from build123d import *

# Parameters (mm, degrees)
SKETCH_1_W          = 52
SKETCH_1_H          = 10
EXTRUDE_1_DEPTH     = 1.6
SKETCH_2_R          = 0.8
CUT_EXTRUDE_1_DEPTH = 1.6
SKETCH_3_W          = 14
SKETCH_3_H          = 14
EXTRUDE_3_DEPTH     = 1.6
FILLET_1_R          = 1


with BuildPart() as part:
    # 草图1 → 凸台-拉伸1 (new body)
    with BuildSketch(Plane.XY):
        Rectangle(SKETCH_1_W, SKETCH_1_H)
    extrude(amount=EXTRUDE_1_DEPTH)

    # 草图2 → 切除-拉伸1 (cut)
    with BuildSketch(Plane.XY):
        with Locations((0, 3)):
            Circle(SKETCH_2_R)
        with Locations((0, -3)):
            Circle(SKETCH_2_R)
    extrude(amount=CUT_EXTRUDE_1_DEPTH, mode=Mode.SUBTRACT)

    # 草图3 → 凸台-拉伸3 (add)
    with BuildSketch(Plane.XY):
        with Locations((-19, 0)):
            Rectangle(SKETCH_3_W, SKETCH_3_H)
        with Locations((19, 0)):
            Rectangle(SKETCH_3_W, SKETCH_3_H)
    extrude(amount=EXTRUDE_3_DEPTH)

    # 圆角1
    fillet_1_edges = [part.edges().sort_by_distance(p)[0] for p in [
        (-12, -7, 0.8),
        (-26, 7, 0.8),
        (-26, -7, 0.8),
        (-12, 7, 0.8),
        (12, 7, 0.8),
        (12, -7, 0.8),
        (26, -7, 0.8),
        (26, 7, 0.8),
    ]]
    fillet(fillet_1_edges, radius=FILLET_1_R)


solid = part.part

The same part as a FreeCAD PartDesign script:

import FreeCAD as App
import Part
import Sketcher

V = App.Vector


def edges_at(feature, points):
    """Names of the edges that pass closest to the given points."""
    edges = feature.Shape.Edges
    near = lambda p: min(range(len(edges)), key=lambda i: edges[i].distToShape(Part.Vertex(*p))[0])
    return sorted({f"Edge{near(p) + 1}" for p in points})

doc = App.newDocument("Part")
body = doc.addObject("PartDesign::Body", "Body")

# Sketch on XY plane
sketch1 = body.newObject("Sketcher::SketchObject", "Sketch")
sketch1.AttachmentSupport = (doc.getObject("XY_Plane"), [""])
sketch1.MapMode = "FlatFace"
sketch1.addGeometry([
    Part.LineSegment(V(-26, 5, 0), V(-26, -5, 0)),
    Part.LineSegment(V(-26, -5, 0), V(26, -5, 0)),
    Part.LineSegment(V(26, -5, 0), V(26, 5, 0)),
    Part.LineSegment(V(26, 5, 0), V(-26, 5, 0)),
], False)
sketch1.addConstraint([
    Sketcher.Constraint("Coincident", 0, 2, 1, 1),
    Sketcher.Constraint("Coincident", 1, 2, 2, 1),
    Sketcher.Constraint("Coincident", 2, 2, 3, 1),
    Sketcher.Constraint("Coincident", 3, 2, 0, 1),
    Sketcher.Constraint("Vertical", 0),
    Sketcher.Constraint("Horizontal", 1),
    Sketcher.Constraint("Vertical", 2),
    Sketcher.Constraint("Horizontal", 3),
    Sketcher.Constraint("Symmetric", 0, 2, 2, 2, -1, 1),
    Sketcher.Constraint("DistanceX", 1, 1, 1, 2, 52.0),
    Sketcher.Constraint("DistanceY", 0, 2, 0, 1, 10.0),
])
pad1 = body.newObject("PartDesign::Pad", "Pad")
pad1.Profile = sketch1
pad1.Length = 1.6

# Sketch on XY plane
sketch2 = body.newObject("Sketcher::SketchObject", "Sketch001")
sketch2.AttachmentSupport = (doc.getObject("XY_Plane"), [""])
sketch2.MapMode = "FlatFace"
sketch2.addGeometry([
    Part.Circle(V(0, 3, 0), V(0, 0, 1), 0.8),
    Part.Circle(V(0, -3, 0), V(0, 0, 1), 0.8),
], False)
sketch2.addConstraint([
    Sketcher.Constraint("Equal", 0, 1),
    Sketcher.Constraint("Symmetric", 0, 3, 1, 3, -1, 1),
    Sketcher.Constraint("PointOnObject", 0, 3, -2),
    Sketcher.Constraint("Diameter", 0, 1.6),
    Sketcher.Constraint("DistanceY", -1, 1, 0, 3, 3.0),
])
pocket1 = body.newObject("PartDesign::Pocket", "Pocket")
pocket1.Profile = sketch2
pocket1.Length = 1.6
pocket1.Reversed = True

# Sketch on XY plane
sketch3 = body.newObject("Sketcher::SketchObject", "Sketch002")
sketch3.AttachmentSupport = (doc.getObject("XY_Plane"), [""])
sketch3.MapMode = "FlatFace"
sketch3.addGeometry([
    Part.LineSegment(V(-26, 7, 0), V(-26, -7, 0)),  # 0
    Part.LineSegment(V(-26, -7, 0), V(-12, -7, 0)),  # 1
    Part.LineSegment(V(-12, -7, 0), V(-12, 7, 0)),  # 2
    Part.LineSegment(V(-12, 7, 0), V(-26, 7, 0)),  # 3
    Part.LineSegment(V(12, 7, 0), V(12, -7, 0)),  # 4
    Part.LineSegment(V(12, -7, 0), V(26, -7, 0)),  # 5
    Part.LineSegment(V(26, -7, 0), V(26, 7, 0)),  # 6
    Part.LineSegment(V(26, 7, 0), V(12, 7, 0)),  # 7
], False)
sketch3.addConstraint([
    Sketcher.Constraint("Coincident", 0, 2, 1, 1),
    Sketcher.Constraint("Coincident", 1, 2, 2, 1),
    Sketcher.Constraint("Coincident", 2, 2, 3, 1),
    Sketcher.Constraint("Coincident", 3, 2, 0, 1),
    Sketcher.Constraint("Coincident", 4, 2, 5, 1),
    Sketcher.Constraint("Coincident", 5, 2, 6, 1),
    Sketcher.Constraint("Coincident", 6, 2, 7, 1),
    Sketcher.Constraint("Coincident", 7, 2, 4, 1),
    Sketcher.Constraint("Vertical", 0),
    Sketcher.Constraint("Horizontal", 1),
    Sketcher.Constraint("Vertical", 2),
    Sketcher.Constraint("Horizontal", 3),
    Sketcher.Constraint("Vertical", 4),
    Sketcher.Constraint("Horizontal", 5),
    Sketcher.Constraint("Vertical", 6),
    Sketcher.Constraint("Horizontal", 7),
    Sketcher.Constraint("Symmetric", 2, 2, 4, 2, -1, 1),
    Sketcher.Constraint("Symmetric", 0, 2, 6, 2, -1, 1),
    Sketcher.Constraint("Horizontal", 1, 2, 4, 2),
    Sketcher.Constraint("Equal", 7, 0),
    Sketcher.Constraint("DistanceX", 1, 1, 1, 2, 14.0),
    Sketcher.Constraint("DistanceX", 0, 2, -1, 1, 26.0),
])
pad2 = body.newObject("PartDesign::Pad", "Pad001")
pad2.Profile = sketch3
pad2.Length = 1.6
doc.recompute()

fillet = body.newObject("PartDesign::Fillet", "Fillet")
fillet.Base = (pad2, edges_at(pad2, [
    (-12, -7, 0.8),
    (-26, 7, 0.8),
    (-26, -7, 0.8),
    (-12, 7, 0.8),
    (12, 7, 0.8),
    (12, -7, 0.8),
    (26, -7, 0.8),
    (26, 7, 0.8),
]))
fillet.Radius = 1

doc.recompute()
